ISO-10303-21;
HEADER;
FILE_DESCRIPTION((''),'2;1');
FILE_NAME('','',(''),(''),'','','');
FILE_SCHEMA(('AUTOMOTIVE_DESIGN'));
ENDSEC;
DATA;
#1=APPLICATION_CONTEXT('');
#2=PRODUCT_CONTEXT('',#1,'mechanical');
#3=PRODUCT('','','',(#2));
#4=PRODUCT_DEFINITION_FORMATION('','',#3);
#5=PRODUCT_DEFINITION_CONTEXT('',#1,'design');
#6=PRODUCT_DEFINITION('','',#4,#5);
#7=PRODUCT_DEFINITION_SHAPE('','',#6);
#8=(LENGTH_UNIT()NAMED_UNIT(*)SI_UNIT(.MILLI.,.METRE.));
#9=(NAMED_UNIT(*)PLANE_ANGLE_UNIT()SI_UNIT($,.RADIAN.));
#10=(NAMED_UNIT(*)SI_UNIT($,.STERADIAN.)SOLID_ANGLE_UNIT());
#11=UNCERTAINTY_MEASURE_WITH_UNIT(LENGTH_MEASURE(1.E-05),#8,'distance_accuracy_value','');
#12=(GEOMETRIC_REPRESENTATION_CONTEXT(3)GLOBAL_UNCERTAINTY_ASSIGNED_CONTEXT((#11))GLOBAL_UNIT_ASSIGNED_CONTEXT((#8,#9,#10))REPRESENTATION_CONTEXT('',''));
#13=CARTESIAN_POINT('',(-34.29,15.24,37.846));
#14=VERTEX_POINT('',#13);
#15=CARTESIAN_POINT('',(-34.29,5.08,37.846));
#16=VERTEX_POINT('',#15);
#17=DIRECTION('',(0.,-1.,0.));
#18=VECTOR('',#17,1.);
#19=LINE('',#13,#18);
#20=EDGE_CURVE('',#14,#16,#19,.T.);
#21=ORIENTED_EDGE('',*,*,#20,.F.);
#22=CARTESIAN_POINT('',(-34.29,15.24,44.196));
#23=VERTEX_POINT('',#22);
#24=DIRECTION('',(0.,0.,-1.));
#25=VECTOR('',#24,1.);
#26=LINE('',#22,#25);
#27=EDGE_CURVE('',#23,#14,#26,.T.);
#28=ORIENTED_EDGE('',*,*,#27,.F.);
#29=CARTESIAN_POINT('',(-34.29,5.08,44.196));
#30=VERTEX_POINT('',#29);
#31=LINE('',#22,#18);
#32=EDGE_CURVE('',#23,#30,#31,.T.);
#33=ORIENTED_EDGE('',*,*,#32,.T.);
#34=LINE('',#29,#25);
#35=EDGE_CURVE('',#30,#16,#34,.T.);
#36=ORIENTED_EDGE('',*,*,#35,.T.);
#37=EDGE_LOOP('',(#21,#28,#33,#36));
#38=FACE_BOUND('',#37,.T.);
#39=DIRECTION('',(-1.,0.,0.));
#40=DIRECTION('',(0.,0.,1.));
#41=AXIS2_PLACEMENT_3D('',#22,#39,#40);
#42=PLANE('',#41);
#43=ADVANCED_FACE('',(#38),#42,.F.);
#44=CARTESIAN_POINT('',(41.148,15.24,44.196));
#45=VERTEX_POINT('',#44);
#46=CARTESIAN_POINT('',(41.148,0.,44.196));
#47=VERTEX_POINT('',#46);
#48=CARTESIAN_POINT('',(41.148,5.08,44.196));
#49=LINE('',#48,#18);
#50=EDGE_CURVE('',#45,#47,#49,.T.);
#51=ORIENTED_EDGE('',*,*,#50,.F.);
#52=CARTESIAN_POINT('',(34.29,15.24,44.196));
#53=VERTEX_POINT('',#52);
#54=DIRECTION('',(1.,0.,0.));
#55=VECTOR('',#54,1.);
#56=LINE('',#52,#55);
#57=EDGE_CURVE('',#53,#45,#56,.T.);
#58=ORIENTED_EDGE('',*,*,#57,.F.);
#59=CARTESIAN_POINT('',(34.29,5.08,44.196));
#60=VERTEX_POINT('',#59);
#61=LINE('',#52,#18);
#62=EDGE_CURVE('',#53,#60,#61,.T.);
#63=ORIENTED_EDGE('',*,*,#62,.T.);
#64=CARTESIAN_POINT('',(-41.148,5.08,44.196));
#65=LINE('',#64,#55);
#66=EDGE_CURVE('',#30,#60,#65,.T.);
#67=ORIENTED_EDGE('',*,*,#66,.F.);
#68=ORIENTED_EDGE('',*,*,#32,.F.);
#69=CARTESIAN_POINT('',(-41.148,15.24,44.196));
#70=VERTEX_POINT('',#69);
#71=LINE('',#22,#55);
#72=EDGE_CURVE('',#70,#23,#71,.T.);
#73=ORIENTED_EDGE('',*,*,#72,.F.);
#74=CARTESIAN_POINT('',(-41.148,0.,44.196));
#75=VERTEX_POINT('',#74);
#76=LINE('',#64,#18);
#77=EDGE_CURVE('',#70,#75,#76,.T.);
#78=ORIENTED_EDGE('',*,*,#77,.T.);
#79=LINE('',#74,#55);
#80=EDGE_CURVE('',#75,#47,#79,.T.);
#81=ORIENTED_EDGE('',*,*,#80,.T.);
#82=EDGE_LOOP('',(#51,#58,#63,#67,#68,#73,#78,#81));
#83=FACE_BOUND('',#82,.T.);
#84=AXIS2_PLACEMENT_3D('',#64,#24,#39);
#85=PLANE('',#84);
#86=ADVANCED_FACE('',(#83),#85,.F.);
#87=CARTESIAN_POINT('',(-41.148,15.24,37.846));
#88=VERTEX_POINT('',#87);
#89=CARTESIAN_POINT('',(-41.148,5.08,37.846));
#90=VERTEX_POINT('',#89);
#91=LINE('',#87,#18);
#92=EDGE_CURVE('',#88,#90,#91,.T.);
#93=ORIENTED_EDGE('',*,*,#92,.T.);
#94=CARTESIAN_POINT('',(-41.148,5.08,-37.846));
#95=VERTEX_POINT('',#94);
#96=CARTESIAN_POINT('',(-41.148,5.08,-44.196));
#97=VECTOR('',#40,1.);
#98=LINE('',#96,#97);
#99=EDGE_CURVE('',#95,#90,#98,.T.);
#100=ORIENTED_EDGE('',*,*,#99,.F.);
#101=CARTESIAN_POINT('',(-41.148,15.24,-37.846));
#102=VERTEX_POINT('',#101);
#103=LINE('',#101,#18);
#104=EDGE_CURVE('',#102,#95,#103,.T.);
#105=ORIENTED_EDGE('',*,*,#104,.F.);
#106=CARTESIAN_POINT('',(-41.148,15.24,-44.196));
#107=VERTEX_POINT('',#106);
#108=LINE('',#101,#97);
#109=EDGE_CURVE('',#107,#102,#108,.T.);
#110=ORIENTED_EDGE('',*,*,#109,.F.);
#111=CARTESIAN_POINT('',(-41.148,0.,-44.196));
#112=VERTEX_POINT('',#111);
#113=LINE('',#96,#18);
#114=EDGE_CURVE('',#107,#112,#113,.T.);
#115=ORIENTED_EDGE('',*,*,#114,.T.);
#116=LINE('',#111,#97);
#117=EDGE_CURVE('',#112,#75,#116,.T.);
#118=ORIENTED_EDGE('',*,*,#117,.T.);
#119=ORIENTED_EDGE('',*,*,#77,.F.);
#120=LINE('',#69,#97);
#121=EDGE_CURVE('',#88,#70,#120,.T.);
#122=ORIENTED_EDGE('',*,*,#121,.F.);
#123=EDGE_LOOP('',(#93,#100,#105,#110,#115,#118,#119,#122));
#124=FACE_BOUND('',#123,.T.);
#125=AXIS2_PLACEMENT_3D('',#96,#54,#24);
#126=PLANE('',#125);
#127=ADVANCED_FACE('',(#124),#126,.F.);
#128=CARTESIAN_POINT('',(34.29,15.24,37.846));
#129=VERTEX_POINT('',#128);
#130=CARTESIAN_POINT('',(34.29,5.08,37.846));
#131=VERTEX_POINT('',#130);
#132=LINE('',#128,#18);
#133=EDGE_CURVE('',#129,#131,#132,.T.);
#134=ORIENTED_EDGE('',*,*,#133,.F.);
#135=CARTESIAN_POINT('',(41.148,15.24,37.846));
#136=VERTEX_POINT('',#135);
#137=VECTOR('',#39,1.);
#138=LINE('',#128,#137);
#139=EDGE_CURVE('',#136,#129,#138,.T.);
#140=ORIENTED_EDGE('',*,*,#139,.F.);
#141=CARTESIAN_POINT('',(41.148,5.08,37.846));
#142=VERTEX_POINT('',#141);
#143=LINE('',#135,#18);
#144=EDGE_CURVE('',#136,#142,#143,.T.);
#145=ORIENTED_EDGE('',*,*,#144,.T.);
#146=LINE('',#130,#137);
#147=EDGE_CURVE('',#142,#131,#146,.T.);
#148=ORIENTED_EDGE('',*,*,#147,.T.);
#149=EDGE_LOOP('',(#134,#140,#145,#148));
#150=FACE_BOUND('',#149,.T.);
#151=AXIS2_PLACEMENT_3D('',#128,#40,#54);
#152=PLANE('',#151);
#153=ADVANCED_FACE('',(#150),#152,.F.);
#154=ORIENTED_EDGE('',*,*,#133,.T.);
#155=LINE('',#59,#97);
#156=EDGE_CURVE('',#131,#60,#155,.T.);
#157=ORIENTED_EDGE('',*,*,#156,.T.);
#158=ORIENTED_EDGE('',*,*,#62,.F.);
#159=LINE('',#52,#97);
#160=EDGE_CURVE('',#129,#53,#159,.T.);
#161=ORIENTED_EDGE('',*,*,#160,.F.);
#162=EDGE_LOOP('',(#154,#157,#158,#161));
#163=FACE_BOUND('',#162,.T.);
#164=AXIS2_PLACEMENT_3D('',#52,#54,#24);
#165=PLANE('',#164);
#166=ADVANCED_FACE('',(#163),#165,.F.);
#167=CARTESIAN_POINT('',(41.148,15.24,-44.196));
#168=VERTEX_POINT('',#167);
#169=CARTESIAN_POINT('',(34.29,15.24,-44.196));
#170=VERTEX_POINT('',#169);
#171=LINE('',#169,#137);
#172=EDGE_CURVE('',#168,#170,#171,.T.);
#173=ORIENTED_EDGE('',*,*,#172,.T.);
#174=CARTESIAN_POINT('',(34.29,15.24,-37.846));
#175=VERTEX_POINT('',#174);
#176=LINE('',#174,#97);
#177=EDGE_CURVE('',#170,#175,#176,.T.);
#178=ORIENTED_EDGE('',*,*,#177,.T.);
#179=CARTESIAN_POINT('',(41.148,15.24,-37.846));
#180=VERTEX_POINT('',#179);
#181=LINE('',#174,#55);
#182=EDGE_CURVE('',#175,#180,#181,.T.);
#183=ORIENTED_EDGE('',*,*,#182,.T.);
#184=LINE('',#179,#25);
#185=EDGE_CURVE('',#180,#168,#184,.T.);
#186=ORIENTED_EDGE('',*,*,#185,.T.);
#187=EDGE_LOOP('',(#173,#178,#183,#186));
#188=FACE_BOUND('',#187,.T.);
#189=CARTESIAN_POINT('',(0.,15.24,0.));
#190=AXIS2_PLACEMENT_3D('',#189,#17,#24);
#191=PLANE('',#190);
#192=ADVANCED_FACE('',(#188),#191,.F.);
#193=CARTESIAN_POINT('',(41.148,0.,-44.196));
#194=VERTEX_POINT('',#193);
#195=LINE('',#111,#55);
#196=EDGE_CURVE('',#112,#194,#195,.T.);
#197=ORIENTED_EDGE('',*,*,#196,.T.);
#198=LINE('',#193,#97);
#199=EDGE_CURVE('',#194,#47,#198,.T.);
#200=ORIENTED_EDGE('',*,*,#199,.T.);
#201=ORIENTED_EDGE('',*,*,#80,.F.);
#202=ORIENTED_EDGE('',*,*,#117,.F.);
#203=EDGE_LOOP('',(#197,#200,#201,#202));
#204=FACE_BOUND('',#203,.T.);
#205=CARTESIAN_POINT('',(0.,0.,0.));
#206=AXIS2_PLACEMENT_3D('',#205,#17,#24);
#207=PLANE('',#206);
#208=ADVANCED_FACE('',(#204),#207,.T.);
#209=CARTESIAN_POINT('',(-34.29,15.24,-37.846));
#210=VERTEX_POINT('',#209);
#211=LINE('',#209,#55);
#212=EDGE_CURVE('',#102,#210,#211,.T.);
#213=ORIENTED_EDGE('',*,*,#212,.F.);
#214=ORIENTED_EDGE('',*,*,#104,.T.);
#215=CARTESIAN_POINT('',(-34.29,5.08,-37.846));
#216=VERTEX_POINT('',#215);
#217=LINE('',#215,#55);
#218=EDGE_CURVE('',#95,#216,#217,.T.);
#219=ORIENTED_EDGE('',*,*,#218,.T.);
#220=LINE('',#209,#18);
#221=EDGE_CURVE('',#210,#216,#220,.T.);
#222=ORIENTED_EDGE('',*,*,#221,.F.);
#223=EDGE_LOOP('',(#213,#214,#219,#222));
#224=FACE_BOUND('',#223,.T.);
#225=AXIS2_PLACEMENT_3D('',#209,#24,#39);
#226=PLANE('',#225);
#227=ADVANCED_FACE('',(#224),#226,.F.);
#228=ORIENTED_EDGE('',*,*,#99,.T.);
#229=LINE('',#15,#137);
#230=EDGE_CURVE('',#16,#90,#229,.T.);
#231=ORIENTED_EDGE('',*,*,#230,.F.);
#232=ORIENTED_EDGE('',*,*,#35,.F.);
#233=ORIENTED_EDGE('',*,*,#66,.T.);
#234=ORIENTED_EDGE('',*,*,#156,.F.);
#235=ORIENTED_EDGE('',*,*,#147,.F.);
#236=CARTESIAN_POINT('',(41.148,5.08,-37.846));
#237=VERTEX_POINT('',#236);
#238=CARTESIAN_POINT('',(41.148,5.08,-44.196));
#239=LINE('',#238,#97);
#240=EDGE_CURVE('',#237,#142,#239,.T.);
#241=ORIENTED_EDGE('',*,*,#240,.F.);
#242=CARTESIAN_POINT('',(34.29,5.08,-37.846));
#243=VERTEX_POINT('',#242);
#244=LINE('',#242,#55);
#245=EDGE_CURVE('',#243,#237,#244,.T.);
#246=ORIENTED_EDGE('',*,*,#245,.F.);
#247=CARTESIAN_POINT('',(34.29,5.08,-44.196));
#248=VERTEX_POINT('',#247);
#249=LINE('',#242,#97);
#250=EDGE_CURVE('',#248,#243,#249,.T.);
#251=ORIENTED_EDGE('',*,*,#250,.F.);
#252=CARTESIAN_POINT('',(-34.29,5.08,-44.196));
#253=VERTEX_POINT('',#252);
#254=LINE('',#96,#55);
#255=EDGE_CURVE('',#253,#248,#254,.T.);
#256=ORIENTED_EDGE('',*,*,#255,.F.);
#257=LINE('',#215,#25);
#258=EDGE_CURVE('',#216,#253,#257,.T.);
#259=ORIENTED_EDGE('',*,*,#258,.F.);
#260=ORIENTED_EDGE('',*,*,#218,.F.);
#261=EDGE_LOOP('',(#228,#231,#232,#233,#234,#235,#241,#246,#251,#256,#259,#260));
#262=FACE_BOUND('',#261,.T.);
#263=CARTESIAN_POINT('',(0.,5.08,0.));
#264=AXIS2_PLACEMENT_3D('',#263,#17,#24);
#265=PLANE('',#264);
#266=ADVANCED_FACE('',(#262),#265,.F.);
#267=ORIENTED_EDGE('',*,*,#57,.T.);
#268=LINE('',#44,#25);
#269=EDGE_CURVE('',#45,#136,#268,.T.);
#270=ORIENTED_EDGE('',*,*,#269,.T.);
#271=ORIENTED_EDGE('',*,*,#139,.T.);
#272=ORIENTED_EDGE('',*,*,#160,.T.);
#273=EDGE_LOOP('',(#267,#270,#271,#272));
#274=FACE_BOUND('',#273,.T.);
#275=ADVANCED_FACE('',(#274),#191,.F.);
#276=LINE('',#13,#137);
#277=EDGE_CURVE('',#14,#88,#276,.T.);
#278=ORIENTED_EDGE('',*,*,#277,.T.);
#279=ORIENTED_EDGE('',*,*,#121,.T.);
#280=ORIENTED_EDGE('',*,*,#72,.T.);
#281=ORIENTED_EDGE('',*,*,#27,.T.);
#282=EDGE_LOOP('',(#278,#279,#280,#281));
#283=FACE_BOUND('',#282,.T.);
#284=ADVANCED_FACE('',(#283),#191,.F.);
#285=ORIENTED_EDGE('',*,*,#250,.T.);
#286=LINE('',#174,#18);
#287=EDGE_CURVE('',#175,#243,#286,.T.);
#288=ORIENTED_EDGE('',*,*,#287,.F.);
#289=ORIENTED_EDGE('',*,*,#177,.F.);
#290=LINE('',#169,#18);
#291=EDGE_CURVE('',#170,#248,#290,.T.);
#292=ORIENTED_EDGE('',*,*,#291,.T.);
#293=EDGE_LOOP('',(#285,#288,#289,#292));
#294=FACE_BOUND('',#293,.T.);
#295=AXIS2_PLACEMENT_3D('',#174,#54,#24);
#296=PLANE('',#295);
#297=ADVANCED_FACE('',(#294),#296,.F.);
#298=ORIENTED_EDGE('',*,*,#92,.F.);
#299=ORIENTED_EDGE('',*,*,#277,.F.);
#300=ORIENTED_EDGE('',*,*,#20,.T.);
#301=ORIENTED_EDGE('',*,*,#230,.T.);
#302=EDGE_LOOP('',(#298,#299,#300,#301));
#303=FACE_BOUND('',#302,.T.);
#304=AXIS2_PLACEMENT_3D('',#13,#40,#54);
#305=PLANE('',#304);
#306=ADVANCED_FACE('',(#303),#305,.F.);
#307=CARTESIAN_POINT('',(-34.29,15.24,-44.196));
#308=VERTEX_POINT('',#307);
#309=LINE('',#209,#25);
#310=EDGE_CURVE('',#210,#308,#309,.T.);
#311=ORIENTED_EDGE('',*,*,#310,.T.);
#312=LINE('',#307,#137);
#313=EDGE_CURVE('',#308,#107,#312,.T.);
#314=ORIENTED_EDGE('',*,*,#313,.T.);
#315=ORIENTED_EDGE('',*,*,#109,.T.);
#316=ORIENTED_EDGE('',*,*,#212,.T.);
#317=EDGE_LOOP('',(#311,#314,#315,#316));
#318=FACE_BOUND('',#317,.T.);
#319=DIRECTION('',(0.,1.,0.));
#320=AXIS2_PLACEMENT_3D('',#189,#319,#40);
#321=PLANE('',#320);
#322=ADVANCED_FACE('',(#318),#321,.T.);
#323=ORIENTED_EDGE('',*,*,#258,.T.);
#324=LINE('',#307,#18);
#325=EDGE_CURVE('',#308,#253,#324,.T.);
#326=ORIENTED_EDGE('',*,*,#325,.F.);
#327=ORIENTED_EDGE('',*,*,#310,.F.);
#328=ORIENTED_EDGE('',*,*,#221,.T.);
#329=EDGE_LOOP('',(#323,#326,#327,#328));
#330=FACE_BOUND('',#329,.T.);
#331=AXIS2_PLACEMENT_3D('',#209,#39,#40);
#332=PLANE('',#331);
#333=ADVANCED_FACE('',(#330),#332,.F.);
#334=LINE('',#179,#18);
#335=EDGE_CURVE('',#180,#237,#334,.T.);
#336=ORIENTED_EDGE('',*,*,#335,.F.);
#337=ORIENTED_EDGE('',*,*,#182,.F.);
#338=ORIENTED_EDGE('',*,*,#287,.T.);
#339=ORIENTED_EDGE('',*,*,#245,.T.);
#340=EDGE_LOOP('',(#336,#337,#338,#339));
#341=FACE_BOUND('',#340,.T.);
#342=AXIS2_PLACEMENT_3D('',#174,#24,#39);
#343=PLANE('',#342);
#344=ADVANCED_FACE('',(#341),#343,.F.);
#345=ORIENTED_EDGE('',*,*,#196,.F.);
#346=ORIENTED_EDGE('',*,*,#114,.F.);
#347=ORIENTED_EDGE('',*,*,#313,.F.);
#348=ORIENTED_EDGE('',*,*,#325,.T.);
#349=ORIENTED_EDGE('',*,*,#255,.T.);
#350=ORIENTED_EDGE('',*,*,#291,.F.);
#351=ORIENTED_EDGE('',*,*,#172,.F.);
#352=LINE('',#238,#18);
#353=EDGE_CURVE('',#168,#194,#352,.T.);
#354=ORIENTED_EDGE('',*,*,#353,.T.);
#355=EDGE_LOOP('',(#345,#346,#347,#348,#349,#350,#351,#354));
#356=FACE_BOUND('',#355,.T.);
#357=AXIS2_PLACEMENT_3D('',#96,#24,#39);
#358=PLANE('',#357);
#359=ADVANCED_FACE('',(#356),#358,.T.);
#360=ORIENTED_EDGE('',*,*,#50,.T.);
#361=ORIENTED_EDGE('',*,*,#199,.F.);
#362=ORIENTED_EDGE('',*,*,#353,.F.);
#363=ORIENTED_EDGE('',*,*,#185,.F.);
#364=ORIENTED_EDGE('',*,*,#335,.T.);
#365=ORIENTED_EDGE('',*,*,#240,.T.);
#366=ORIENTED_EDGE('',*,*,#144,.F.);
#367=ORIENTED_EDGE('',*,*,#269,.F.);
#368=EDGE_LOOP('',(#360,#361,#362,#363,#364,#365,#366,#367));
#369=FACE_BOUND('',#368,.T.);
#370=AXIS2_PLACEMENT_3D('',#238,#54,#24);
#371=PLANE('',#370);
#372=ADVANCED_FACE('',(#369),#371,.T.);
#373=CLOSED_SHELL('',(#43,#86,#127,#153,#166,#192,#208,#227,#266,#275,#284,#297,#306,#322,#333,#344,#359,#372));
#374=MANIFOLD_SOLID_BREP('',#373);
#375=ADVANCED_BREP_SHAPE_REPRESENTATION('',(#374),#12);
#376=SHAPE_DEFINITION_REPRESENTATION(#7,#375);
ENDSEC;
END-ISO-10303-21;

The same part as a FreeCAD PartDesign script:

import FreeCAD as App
import Part
import Sketcher

V = App.Vector
Q = App.Units.Quantity


def add_polygon(sketch, points):
    """Adds a closed chain of lines whose ends are joined by coincident constraints."""
    first, n = sketch.GeometryCount, len(points)
    for a, b in zip(points, points[1:] + points[:1]):
        sketch.addGeometry(Part.LineSegment(App.Vector(*a, 0), App.Vector(*b, 0)), False)
    for i in range(n):
        sketch.addConstraint(Sketcher.Constraint("Coincident", first + i, 2, first + (i + 1) % n, 1))

doc = App.newDocument("Part")
body = doc.addObject("PartDesign::Body", "Body")

# Sketch on XZ plane
sketch1 = body.newObject("Sketcher::SketchObject", "Sketch")
sketch1.AttachmentSupport = (doc.getObject("XZ_Plane"), [""])
sketch1.MapMode = "FlatFace"
add_polygon(sketch1, [(-41.148, -44.196), (-41.148, 44.196), (41.148, 44.196), (41.148, -44.196)])  # lines 0-3
sketch1.addConstraint([
    Sketcher.Constraint("Vertical", 0),
    Sketcher.Constraint("Horizontal", 1),
    Sketcher.Constraint("Vertical", 2),
    Sketcher.Constraint("Horizontal", 3),
    Sketcher.Constraint("Symmetric", 0, 2, 2, 2, -1, 1),
    Sketcher.Constraint("DistanceX", 1, 1, 1, 2, Q("3.24 in")),
    Sketcher.Constraint("DistanceY", 0, 1, 0, 2, Q("3.48 in")),
])
pad1 = body.newObject("PartDesign::Pad", "Pad")
pad1.Profile = sketch1
pad1.Length = Q("0.2 in")
pad1.Reversed = True

# Sketch on XZ plane
sketch2 = body.newObject("Sketcher::SketchObject", "Sketch001")
sketch2.AttachmentSupport = (doc.getObject("XZ_Plane"), [""])
sketch2.MapMode = "FlatFace"
sketch2.AttachmentOffset = App.Placement(V(0, 0, -0.2 * 25.4), App.Rotation())
add_polygon(sketch2, [(-41.148, 37.846), (-41.148, 44.196), (-34.29, 44.196), (-34.29, 37.846)])  # lines 0-3
add_polygon(sketch2, [(-41.148, -44.196), (-41.148, -37.846), (-34.29, -37.846), (-34.29, -44.196)])  # lines 4-7
add_polygon(sketch2, [(34.29, 37.846), (34.29, 44.196), (41.148, 44.196), (41.148, 37.846)])  # lines 8-11
add_polygon(sketch2, [(34.29, -44.196), (34.29, -37.846), (41.148, -37.846), (41.148, -44.196)])  # lines 12-15
sketch2.addConstraint([
    Sketcher.Constraint("Vertical", 0),
    Sketcher.Constraint("Horizontal", 1),
    Sketcher.Constraint("Vertical", 2),
    Sketcher.Constraint("Horizontal", 3),
    Sketcher.Constraint("Vertical", 4),
    Sketcher.Constraint("Horizontal", 5),
    Sketcher.Constraint("Vertical", 6),
    Sketcher.Constraint("Horizontal", 7),
    Sketcher.Constraint("Vertical", 8),
    Sketcher.Constraint("Horizontal", 9),
    Sketcher.Constraint("Vertical", 10),
    Sketcher.Constraint("Horizontal", 11),
    Sketcher.Constraint("Vertical", 12),
    Sketcher.Constraint("Horizontal", 13),
    Sketcher.Constraint("Vertical", 14),
    Sketcher.Constraint("Horizontal", 15),
    Sketcher.Constraint("Symmetric", 6, 2, 8, 2, -1, 1),
    Sketcher.Constraint("Symmetric", 4, 2, 10, 2, -1, 1),
    Sketcher.Constraint("Symmetric", 2, 2, 12, 2, -1, 1),
    Sketcher.Constraint("Symmetric", 0, 2, 14, 2, -1, 1),
    Sketcher.Constraint("Symmetric", 1, 2, 8, 2, -2),
    Sketcher.Constraint("Symmetric", 3, 2, 10, 2, -2),
    Sketcher.Constraint("DistanceX", 1, 1, 1, 2, Q("0.27 in")),
    Sketcher.Constraint("DistanceY", 0, 1, 0, 2, Q("0.25 in")),
    Sketcher.Constraint("DistanceX", 1, 2, 8, 2, Q("2.7 in")),
    Sketcher.Constraint("DistanceY", -1, 1, 0, 2, Q("1.74 in")),
])
pad2 = body.newObject("PartDesign::Pad", "Pad001")
pad2.Profile = sketch2
pad2.Length = Q("0.4 in")
pad2.Reversed = True

doc.recompute()
